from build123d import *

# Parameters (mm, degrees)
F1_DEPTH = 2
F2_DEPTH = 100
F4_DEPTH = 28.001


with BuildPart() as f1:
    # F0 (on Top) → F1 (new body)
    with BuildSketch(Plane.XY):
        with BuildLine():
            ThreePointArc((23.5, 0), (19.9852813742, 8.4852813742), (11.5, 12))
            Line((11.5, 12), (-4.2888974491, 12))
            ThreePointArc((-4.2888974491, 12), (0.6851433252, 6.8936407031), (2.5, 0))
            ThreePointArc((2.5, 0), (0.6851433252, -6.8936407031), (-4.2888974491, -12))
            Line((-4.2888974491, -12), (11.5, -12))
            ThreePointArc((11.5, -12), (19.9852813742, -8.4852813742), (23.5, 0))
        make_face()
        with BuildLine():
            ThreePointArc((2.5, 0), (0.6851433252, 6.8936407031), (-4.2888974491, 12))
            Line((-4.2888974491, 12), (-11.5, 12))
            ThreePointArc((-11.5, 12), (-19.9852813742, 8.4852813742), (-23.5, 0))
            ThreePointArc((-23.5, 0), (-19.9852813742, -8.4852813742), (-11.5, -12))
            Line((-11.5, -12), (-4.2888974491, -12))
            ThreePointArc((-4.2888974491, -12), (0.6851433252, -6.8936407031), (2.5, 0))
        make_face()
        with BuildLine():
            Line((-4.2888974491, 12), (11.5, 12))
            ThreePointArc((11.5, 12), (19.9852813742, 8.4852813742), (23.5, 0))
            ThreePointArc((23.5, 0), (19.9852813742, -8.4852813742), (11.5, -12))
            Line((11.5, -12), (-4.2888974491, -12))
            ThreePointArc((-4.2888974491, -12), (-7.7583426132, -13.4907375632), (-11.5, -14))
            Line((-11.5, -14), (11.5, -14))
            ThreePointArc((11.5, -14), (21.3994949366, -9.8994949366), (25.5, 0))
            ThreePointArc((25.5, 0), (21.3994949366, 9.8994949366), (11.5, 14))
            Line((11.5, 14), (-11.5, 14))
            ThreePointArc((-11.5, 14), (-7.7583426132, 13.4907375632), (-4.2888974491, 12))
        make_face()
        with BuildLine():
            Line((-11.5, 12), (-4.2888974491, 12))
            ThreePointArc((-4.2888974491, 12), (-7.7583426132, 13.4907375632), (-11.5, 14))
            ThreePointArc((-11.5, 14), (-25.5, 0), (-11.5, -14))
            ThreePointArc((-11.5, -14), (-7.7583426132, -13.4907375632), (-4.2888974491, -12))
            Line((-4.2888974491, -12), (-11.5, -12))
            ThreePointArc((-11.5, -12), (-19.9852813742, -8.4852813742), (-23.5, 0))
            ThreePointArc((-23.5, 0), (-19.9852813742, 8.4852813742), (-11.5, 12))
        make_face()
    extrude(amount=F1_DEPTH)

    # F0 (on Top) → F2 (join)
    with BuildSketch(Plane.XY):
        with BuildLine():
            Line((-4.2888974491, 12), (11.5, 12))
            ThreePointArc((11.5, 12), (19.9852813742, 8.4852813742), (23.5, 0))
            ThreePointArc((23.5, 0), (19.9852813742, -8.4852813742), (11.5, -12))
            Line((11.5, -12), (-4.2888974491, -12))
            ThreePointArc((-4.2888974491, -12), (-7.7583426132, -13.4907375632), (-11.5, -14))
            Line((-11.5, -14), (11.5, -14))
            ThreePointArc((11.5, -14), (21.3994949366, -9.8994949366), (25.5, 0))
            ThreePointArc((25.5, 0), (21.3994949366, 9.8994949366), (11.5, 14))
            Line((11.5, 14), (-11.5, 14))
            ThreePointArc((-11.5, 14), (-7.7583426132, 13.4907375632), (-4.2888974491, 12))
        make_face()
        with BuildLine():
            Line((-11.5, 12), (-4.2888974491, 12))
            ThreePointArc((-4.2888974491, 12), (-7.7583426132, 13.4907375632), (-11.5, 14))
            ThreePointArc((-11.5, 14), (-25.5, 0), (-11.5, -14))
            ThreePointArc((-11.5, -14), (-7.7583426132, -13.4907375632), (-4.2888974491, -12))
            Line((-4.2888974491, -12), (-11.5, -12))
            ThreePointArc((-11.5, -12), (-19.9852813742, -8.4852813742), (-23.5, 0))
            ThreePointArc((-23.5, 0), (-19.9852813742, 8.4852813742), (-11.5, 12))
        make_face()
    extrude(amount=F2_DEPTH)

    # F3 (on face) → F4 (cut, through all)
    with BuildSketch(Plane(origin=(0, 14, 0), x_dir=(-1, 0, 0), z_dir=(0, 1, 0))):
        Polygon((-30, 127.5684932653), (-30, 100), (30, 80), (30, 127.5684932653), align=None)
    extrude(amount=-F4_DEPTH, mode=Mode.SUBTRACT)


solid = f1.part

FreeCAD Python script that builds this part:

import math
import FreeCAD as App
import Part
import Sketcher

V = App.Vector
Q = App.Units.Quantity


def add_polygon(sketch, points):
    """Adds a closed chain of lines whose ends are joined by coincident constraints."""
    first, n = sketch.GeometryCount, len(points)
    for a, b in zip(points, points[1:] + points[:1]):
        sketch.addGeometry(Part.LineSegment(App.Vector(*a, 0), App.Vector(*b, 0)), False)
    for i in range(n):
        sketch.addConstraint(Sketcher.Constraint("Coincident", first + i, 2, first + (i + 1) % n, 1))

doc = App.newDocument("Part")
params = doc.addObject("Spreadsheet::Sheet", "Params")
for row, (alias, value) in enumerate([
    ("sketch1_radius", "14 mm"),
    ("sketch1_width", "23 mm"),
    ("pad1_length", "2 mm"),
    ("sketch2_radius", "14 mm"),
    ("sketch2_radius2", "12 mm"),
    ("sketch2_width", "23 mm"),
    ("pad2_length", "100 mm"),
    ("sketch3_width", "60 mm"),
], start=1):
    params.set(f"A{row}", alias)
    params.set(f"B{row}", "=" + value)
    params.setAlias(f"B{row}", alias)

body = doc.addObject("PartDesign::Body", "Body")

sketch1 = doc.addObject("Sketcher::SketchObject", "Sketch")
body.addObject(sketch1)
sketch1.AttachmentSupport = (doc.XY_Plane, [""])
sketch1.MapMode = "FlatFace"
sketch1.addGeometry(Part.LineSegment(V(12, 14, 0), V(-12, 14, 0)), False)
sketch1.addGeometry(Part.ArcOfCircle(Part.Circle(V(-12, 0, 0), V(0, 0, 1), 14), math.radians(90), math.radians(270)), False)
sketch1.addGeometry(Part.LineSegment(V(-12, -14, 0), V(12, -14, 0)), False)
sketch1.addGeometry(Part.ArcOfCircle(Part.Circle(V(12, 0, 0), V(0, 0, 1), 14), math.radians(-90), math.radians(0)), False)
sketch1.addGeometry(Part.ArcOfCircle(Part.Circle(V(12, 0, 0), V(0, 0, 1), 14), math.radians(0), math.radians(90)), False)
sketch1.addConstraint(Sketcher.Constraint("Tangent", 0, 2, 1, 1))
sketch1.addConstraint(Sketcher.Constraint("Tangent", 1, 2, 2, 1))
sketch1.addConstraint(Sketcher.Constraint("Tangent", 2, 2, 3, 1))
sketch1.addConstraint(Sketcher.Constraint("Tangent", 3, 2, 4, 1))
sketch1.addConstraint(Sketcher.Constraint("Tangent", 4, 2, 0, 1))
sketch1.addConstraint(Sketcher.Constraint("Horizontal", 0))
sketch1.addConstraint(Sketcher.Constraint("Horizontal", 2))
sketch1.addConstraint(Sketcher.Constraint("Equal", 1, 3))
sketch1.addConstraint(Sketcher.Constraint("Symmetric", 1, 3, 3, 3, -1, 1))
sketch1.addConstraint(Sketcher.Constraint("PointOnObject", 3, 2, -1))
sketch1.addConstraint(Sketcher.Constraint("Radius", 1, Q("14 mm")))
sketch1.addConstraint(Sketcher.Constraint("DistanceX", 0, 2, 0, 1, Q("23 mm")))
sketch1.setExpression("Constraints[10]", "Params.sketch1_radius")
sketch1.setExpression("Constraints[11]", "Params.sketch1_width")
pad1 = doc.addObject("PartDesign::Pad", "Pad")
body.addObject(pad1)
pad1.Profile = sketch1
pad1.setExpression("Length", "Params.pad1_length")

sketch2 = doc.addObject("Sketcher::SketchObject", "Sketch001")
body.addObject(sketch2)
sketch2.AttachmentSupport = (doc.XY_Plane, [""])
sketch2.MapMode = "FlatFace"
sketch2.addGeometry(Part.LineSegment(V(-12, -14, 0), V(12, -14, 0)), False)
sketch2.addGeometry(Part.ArcOfCircle(Part.Circle(V(12, 0, 0), V(0, 0, 1), 14), math.radians(-90), math.radians(0)), False)
sketch2.addGeometry(Part.ArcOfCircle(Part.Circle(V(12, 0, 0), V(0, 0, 1), 14), math.radians(0), math.radians(90)), False)
sketch2.addGeometry(Part.LineSegment(V(12, 14, 0), V(-12, 14, 0)), False)
sketch2.addGeometry(Part.ArcOfCircle(Part.Circle(V(-12, 0, 0), V(0, 0, 1), 14), math.radians(90), math.radians(270)), False)
sketch2.addGeometry(Part.ArcOfCircle(Part.Circle(V(12, 0, 0), V(0, 0, 1), 12), math.radians(0), math.radians(90)), False)
sketch2.addGeometry(Part.ArcOfCircle(Part.Circle(V(12, 0, 0), V(0, 0, 1), 12), math.radians(-90), math.radians(0)), False)
sketch2.addGeometry(Part.LineSegment(V(12, -12, 0), V(-12, -12, 0)), False)
sketch2.addGeometry(Part.ArcOfCircle(Part.Circle(V(-12, 0, 0), V(0, 0, 1), 12), math.radians(180), math.radians(270)), False)
sketch2.addGeometry(Part.ArcOfCircle(Part.Circle(V(-12, 0, 0), V(0, 0, 1), 12), math.radians(90), math.radians(180)), False)
sketch2.addGeometry(Part.LineSegment(V(-12, 12, 0), V(12, 12, 0)), False)
sketch2.addConstraint(Sketcher.Constraint("Tangent", 0, 2, 1, 1))
sketch2.addConstraint(Sketcher.Constraint("Tangent", 1, 2, 2, 1))
sketch2.addConstraint(Sketcher.Constraint("Tangent", 2, 2, 3, 1))
sketch2.addConstraint(Sketcher.Constraint("Tangent", 3, 2, 4, 1))
sketch2.addConstraint(Sketcher.Constraint("Tangent", 4, 2, 0, 1))
sketch2.addConstraint(Sketcher.Constraint("Tangent", 5, 1, 6, 2))
sketch2.addConstraint(Sketcher.Constraint("Tangent", 6, 1, 7, 1))
sketch2.addConstraint(Sketcher.Constraint("Tangent", 7, 2, 8, 2))
sketch2.addConstraint(Sketcher.Constraint("Tangent", 8, 1, 9, 2))
sketch2.addConstraint(Sketcher.Constraint("Tangent", 9, 1, 10, 1))
sketch2.addConstraint(Sketcher.Constraint("Tangent", 10, 2, 5, 2))
sketch2.addConstraint(Sketcher.Constraint("Horizontal", 0))
sketch2.addConstraint(Sketcher.Constraint("Horizontal", 3))
sketch2.addConstraint(Sketcher.Constraint("Horizontal", 7))
sketch2.addConstraint(Sketcher.Constraint("Horizontal", 10))
sketch2.addConstraint(Sketcher.Constraint("Coincident", 5, 3, 1, 3))
sketch2.addConstraint(Sketcher.Constraint("Coincident", 8, 3, 4, 3))
sketch2.addConstraint(Sketcher.Constraint("Equal", 1, 2))
sketch2.addConstraint(Sketcher.Constraint("Equal", 5, 6))
sketch2.addConstraint(Sketcher.Constraint("Symmetric", 1, 3, 4, 3, -1, 1))
sketch2.addConstraint(Sketcher.Constraint("PointOnObject", 1, 2, -1))
sketch2.addConstraint(Sketcher.Constraint("PointOnObject", 5, 1, -1))
sketch2.addConstraint(Sketcher.Constraint("PointOnObject", 8, 1, -1))
sketch2.addConstraint(Sketcher.Constraint("Radius", 1, Q("14 mm")))
sketch2.addConstraint(Sketcher.Constraint("Radius", 5, Q("12 mm")))
sketch2.addConstraint(Sketcher.Constraint("DistanceX", 0, 1, 0, 2, Q("23 mm")))
sketch2.setExpression("Constraints[23]", "Params.sketch2_radius")
sketch2.setExpression("Constraints[24]", "Params.sketch2_radius2")
sketch2.setExpression("Constraints[25]", "Params.sketch2_width")
pad2 = doc.addObject("PartDesign::Pad", "Pad001")
body.addObject(pad2)
pad2.Profile = sketch2
pad2.setExpression("Length", "Params.pad2_length")

sketch3 = doc.addObject("Sketcher::SketchObject", "Sketch002")
body.addObject(sketch3)
sketch3.AttachmentSupport = (doc.XZ_Plane, [""])
sketch3.MapMode = "FlatFace"
sketch3.AttachmentOffset = App.Placement(V(0, 0, -14), App.Rotation())
add_polygon(sketch3, [(30, 128), (30, 100), (-30, 80), (-30, 128)])
sketch3.addConstraint(Sketcher.Constraint("Vertical", 0))
sketch3.addConstraint(Sketcher.Constraint("Vertical", 2))
sketch3.addConstraint(Sketcher.Constraint("Horizontal", 3))
sketch3.addConstraint(Sketcher.Constraint("DistanceX", 3, 1, 3, 2, Q("60 mm")))
sketch3.addConstraint(Sketcher.Constraint("DistanceX", -1, 1, 0, 2, Q("30 mm")))
sketch3.addConstraint(Sketcher.Constraint("DistanceY", -1, 1, 0, 2, Q("100 mm")))
sketch3.addConstraint(Sketcher.Constraint("DistanceY", -1, 1, 1, 2, Q("80 mm")))
sketch3.addConstraint(Sketcher.Constraint("DistanceY", 0, 2, 0, 1, Q("27.568493 mm")))
sketch3.setExpression("Constraints[7]", "Params.sketch3_width")
pocket1 = doc.addObject("PartDesign::Pocket", "Pocket")
body.addObject(pocket1)
pocket1.Profile = sketch3
pocket1.Type = "ThroughAll"
pocket1.Reversed = True

doc.recompute()
